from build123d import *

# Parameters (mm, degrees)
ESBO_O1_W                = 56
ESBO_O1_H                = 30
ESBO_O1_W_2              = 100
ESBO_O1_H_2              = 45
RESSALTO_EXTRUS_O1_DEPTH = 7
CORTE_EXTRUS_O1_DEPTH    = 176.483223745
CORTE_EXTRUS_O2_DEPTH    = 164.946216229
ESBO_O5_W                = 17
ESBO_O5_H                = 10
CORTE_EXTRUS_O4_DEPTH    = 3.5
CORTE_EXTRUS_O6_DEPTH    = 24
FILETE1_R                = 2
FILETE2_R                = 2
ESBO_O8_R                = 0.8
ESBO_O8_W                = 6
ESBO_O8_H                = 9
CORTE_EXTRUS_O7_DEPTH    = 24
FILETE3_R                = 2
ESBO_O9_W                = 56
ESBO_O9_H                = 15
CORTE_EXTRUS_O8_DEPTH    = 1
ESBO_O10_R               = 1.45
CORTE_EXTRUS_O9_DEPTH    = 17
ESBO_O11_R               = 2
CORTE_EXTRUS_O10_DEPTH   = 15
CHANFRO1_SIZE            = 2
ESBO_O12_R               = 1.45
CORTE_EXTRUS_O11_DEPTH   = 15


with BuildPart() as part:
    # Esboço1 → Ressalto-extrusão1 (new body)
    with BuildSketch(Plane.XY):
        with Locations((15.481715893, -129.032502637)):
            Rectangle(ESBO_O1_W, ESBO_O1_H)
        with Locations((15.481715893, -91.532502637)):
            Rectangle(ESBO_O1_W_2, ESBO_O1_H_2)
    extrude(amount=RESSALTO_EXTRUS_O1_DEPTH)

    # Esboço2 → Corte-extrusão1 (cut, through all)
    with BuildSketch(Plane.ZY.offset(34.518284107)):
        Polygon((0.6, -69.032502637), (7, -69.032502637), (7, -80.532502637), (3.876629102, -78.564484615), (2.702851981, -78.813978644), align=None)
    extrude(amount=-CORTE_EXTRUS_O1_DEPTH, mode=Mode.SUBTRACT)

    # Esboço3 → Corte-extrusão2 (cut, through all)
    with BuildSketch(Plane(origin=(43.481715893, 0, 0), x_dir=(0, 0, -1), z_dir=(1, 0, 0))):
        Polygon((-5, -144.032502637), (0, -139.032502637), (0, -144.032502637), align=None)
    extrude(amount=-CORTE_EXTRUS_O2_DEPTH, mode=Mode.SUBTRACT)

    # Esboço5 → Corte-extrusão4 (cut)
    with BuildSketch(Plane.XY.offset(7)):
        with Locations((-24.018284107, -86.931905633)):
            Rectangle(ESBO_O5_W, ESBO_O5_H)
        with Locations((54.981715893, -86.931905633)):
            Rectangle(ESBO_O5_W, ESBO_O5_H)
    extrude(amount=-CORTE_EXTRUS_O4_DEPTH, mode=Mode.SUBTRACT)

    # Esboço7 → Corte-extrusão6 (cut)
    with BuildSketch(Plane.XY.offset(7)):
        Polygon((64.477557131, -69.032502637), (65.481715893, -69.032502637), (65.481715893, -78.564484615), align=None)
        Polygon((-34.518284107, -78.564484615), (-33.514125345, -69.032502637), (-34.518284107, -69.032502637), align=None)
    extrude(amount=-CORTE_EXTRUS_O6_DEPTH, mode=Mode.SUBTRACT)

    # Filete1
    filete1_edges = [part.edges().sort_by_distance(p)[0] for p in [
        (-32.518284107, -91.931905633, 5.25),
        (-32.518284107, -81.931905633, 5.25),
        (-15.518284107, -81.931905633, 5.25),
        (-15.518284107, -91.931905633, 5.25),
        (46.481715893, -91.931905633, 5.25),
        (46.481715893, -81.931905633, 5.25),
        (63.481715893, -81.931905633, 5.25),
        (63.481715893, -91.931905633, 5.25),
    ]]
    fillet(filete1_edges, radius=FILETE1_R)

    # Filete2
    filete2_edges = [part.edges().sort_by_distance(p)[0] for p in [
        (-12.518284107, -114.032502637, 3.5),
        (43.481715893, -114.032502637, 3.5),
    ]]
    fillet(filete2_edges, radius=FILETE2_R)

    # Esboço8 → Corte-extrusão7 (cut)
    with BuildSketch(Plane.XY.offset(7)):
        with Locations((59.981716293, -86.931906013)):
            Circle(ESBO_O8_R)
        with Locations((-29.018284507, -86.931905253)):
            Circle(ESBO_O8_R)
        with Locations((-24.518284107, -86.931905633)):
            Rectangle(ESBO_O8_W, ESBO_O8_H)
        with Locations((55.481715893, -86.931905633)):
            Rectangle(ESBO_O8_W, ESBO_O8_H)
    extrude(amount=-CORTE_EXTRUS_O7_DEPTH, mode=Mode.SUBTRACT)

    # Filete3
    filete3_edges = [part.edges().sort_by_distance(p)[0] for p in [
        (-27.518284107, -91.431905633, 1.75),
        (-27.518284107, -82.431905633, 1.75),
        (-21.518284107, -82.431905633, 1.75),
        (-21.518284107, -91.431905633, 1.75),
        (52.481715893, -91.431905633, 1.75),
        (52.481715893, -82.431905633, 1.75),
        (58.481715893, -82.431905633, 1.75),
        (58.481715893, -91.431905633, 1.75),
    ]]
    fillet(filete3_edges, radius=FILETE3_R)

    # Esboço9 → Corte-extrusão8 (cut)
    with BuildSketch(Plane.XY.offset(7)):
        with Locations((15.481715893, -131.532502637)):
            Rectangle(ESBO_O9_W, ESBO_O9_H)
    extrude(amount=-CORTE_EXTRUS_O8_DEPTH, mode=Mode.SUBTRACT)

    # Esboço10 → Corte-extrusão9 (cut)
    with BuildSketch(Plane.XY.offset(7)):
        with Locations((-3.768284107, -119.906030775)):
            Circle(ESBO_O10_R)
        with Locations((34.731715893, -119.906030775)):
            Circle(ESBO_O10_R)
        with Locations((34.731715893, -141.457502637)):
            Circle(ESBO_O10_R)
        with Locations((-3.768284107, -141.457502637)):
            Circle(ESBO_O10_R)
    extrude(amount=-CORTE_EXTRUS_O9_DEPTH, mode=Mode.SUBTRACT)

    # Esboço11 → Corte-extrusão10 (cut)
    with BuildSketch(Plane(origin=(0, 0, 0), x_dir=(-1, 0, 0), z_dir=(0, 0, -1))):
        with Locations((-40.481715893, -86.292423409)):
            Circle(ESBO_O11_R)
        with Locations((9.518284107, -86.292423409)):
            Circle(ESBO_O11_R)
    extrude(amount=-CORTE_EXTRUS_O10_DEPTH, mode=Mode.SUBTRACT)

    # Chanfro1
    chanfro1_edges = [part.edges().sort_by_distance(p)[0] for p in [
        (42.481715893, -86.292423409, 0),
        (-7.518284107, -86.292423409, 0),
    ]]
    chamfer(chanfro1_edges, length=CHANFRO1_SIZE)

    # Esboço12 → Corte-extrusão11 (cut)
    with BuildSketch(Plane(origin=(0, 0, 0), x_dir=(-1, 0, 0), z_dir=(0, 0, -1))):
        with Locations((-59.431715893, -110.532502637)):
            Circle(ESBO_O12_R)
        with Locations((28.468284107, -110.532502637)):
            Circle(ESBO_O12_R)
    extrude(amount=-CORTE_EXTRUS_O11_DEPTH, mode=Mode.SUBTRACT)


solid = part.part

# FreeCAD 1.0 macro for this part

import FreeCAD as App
import Part
import Sketcher
Q = App.Units.Quantity


def edges_at(feature, points):
    """Names of the edges that pass closest to the given points."""
    edges = feature.Shape.Edges
    near = lambda p: min(range(len(edges)), key=lambda i: edges[i].distToShape(Part.Vertex(*p))[0])
    return sorted({f"Edge{near(p) + 1}" for p in points})

doc = App.newDocument("Part")
body = doc.addObject("PartDesign::Body", "Body")

# Sketch on XY plane
sketch1 = body.newObject("Sketcher::SketchObject", "Sketch")
sketch1.AttachmentSupport = (doc.getObject("XY_Plane"), [""])
sketch1.MapMode = "FlatFace"
sketch1.addGeometry(Part.LineSegment(App.Vector(-13, -114, 0), App.Vector(-13, -144, 0)), False)
sketch1.addGeometry(Part.LineSegment(App.Vector(-13, -144, 0), App.Vector(43, -144, 0)), False)
sketch1.addGeometry(Part.LineSegment(App.Vector(43, -144, 0), App.Vector(43, -114, 0)), False)
sketch1.addGeometry(Part.LineSegment(App.Vector(43, -114, 0), App.Vector(65, -114, 0)), False)
sketch1.addGeometry(Part.LineSegment(App.Vector(65, -114, 0), App.Vector(65, -69, 0)), False)
sketch1.addGeometry(Part.LineSegment(App.Vector(65, -69, 0), App.Vector(-35, -69, 0)), False)
sketch1.addGeometry(Part.LineSegment(App.Vector(-35, -69, 0), App.Vector(-35, -114, 0)), False)
sketch1.addGeometry(Part.LineSegment(App.Vector(-35, -114, 0), App.Vector(-13, -114, 0)), False)
sketch1.addConstraint(Sketcher.Constraint("Coincident", 0, 2, 1, 1))
sketch1.addConstraint(Sketcher.Constraint("Coincident", 1, 2, 2, 1))
sketch1.addConstraint(Sketcher.Constraint("Coincident", 2, 2, 3, 1))
sketch1.addConstraint(Sketcher.Constraint("Coincident", 3, 2, 4, 1))
sketch1.addConstraint(Sketcher.Constraint("Coincident", 4, 2, 5, 1))
sketch1.addConstraint(Sketcher.Constraint("Coincident", 5, 2, 6, 1))
sketch1.addConstraint(Sketcher.Constraint("Coincident", 6, 2, 7, 1))
sketch1.addConstraint(Sketcher.Constraint("Coincident", 7, 2, 0, 1))
sketch1.addConstraint(Sketcher.Constraint("Vertical", 0))
sketch1.addConstraint(Sketcher.Constraint("Horizontal", 1))
sketch1.addConstraint(Sketcher.Constraint("Vertical", 2))
sketch1.addConstraint(Sketcher.Constraint("Horizontal", 3))
sketch1.addConstraint(Sketcher.Constraint("Vertical", 4))
sketch1.addConstraint(Sketcher.Constraint("Horizontal", 5))
sketch1.addConstraint(Sketcher.Constraint("Vertical", 6))
sketch1.addConstraint(Sketcher.Constraint("Horizontal", 7))
sketch1.addConstraint(Sketcher.Constraint("Horizontal", 3, 2, 6, 2))
sketch1.addConstraint(Sketcher.Constraint("Equal", 3, 7))
sketch1.addConstraint(Sketcher.Constraint("DistanceX", 1, 1, 1, 2, 56.0))
sketch1.addConstraint(Sketcher.Constraint("DistanceX", 3, 1, 3, 2, 22.0))
sketch1.addConstraint(Sketcher.Constraint("DistanceY", 0, 2, 0, 1, 30.0))
sketch1.addConstraint(Sketcher.Constraint("DistanceY", 4, 1, 4, 2, 45.0))
sketch1.addConstraint(Sketcher.Constraint("DistanceX", 0, 2, -1, 1, 12.518284))
sketch1.addConstraint(Sketcher.Constraint("DistanceY", 0, 2, -1, 1, 144.032503))
pad1 = body.newObject("PartDesign::Pad", "Pad")
pad1.Profile = sketch1
pad1.Length = 7

# Sketch on YZ plane
sketch2 = body.newObject("Sketcher::SketchObject", "Sketch001")
sketch2.AttachmentSupport = (doc.getObject("YZ_Plane"), [""])
sketch2.MapMode = "FlatFace"
sketch2.AttachmentOffset = App.Placement(App.Vector(0, 0, -34.518284), App.Rotation())
sketch2.addGeometry(Part.LineSegment(App.Vector(-69, 7, 0), App.Vector(-69, 0.6, 0)), False)
sketch2.addGeometry(Part.LineSegment(App.Vector(-69, 0.6, 0), App.Vector(-78.8, 2.7, 0)), False)
sketch2.addGeometry(Part.LineSegment(App.Vector(-78.8, 2.7, 0), App.Vector(-78.6, 3.9, 0)), False)
sketch2.addGeometry(Part.LineSegment(App.Vector(-78.6, 3.9, 0), App.Vector(-80.5, 7, 0)), False)
sketch2.addGeometry(Part.LineSegment(App.Vector(-80.5, 7, 0), App.Vector(-69, 7, 0)), False)
sketch2.addConstraint(Sketcher.Constraint("Coincident", 0, 2, 1, 1))
sketch2.addConstraint(Sketcher.Constraint("Coincident", 1, 2, 2, 1))
sketch2.addConstraint(Sketcher.Constraint("Coincident", 2, 2, 3, 1))
sketch2.addConstraint(Sketcher.Constraint("Coincident", 3, 2, 4, 1))
sketch2.addConstraint(Sketcher.Constraint("Coincident", 4, 2, 0, 1))
sketch2.addConstraint(Sketcher.Constraint("Vertical", 0))
sketch2.addConstraint(Sketcher.Constraint("Horizontal", 4))
sketch2.addConstraint(Sketcher.Constraint("Angle", 2, Q("78 deg")))
sketch2.addConstraint(Sketcher.Constraint("DistanceX", 4, 1, 4, 2, 11.5))
sketch2.addConstraint(Sketcher.Constraint("DistanceY", 0, 2, 0, 1, 6.4))
sketch2.addConstraint(Sketcher.Constraint("DistanceY", -1, 1, 3, 2, 7.0))
sketch2.addConstraint(Sketcher.Constraint("Distance", 2, 1.2))
sketch2.addConstraint(Sketcher.Constraint("Distance", 1, 10.004962))
sketch2.addConstraint(Sketcher.Constraint("DistanceX", 1, 2, -1, 1, 78.813979))
sketch2.addConstraint(Sketcher.Constraint("DistanceY", -1, 1, 1, 2, 2.702852))
pocket1 = body.newObject("PartDesign::Pocket", "Pocket")
pocket1.Profile = sketch2
pocket1.Type = "ThroughAll"
pocket1.Reversed = True

# Sketch on YZ plane
sketch3 = body.newObject("Sketcher::SketchObject", "Sketch002")
sketch3.AttachmentSupport = (doc.getObject("YZ_Plane"), [""])
sketch3.MapMode = "FlatFace"
sketch3.AttachmentOffset = App.Placement(App.Vector(0, 0, 43.481716), App.Rotation())
sketch3.addGeometry(Part.LineSegment(App.Vector(-139, 0, 0), App.Vector(-144, 5, 0)), False)
sketch3.addGeometry(Part.LineSegment(App.Vector(-144, 5, 0), App.Vector(-144, 0, 0)), False)
sketch3.addGeometry(Part.LineSegment(App.Vector(-144, 0, 0), App.Vector(-139, 0, 0)), False)
sketch3.addConstraint(Sketcher.Constraint("Coincident", 0, 2, 1, 1))
sketch3.addConstraint(Sketcher.Constraint("Coincident", 1, 2, 2, 1))
sketch3.addConstraint(Sketcher.Constraint("Coincident", 2, 2, 0, 1))
sketch3.addConstraint(Sketcher.Constraint("Vertical", 1))
sketch3.addConstraint(Sketcher.Constraint("Horizontal", 2))
sketch3.addConstraint(Sketcher.Constraint("PointOnObject", 1, 2, -1))
sketch3.addConstraint(Sketcher.Constraint("Equal", 2, 1))
sketch3.addConstraint(Sketcher.Constraint("DistanceX", 2, 1, 2, 2, 5.0))
sketch3.addConstraint(Sketcher.Constraint("DistanceX", 0, 2, -1, 1, 144.032503))
pocket2 = body.newObject("PartDesign::Pocket", "Pocket001")
pocket2.Profile = sketch3
pocket2.Type = "ThroughAll"

# Sketch on XY plane
sketch4 = body.newObject("Sketcher::SketchObject", "Sketch003")
sketch4.AttachmentSupport = (doc.getObject("XY_Plane"), [""])
sketch4.MapMode = "FlatFace"
sketch4.AttachmentOffset = App.Placement(App.Vector(0, 0, 7), App.Rotation())
sketch4.addGeometry(Part.LineSegment(App.Vector(-33, -82, 0), App.Vector(-33, -92, 0)), False)
sketch4.addGeometry(Part.LineSegment(App.Vector(-33, -92, 0), App.Vector(-16, -92, 0)), False)
sketch4.addGeometry(Part.LineSegment(App.Vector(-16, -92, 0), App.Vector(-16, -82, 0)), False)
sketch4.addGeometry(Part.LineSegment(App.Vector(-16, -82, 0), App.Vector(-33, -82, 0)), False)
sketch4.addGeometry(Part.LineSegment(App.Vector(46, -82, 0), App.Vector(46, -92, 0)), False)
sketch4.addGeometry(Part.LineSegment(App.Vector(46, -92, 0), App.Vector(63, -92, 0)), False)
sketch4.addGeometry(Part.LineSegment(App.Vector(63, -92, 0), App.Vector(63, -82, 0)), False)
sketch4.addGeometry(Part.LineSegment(App.Vector(63, -82, 0), App.Vector(46, -82, 0)), False)
sketch4.addConstraint(Sketcher.Constraint("Coincident", 0, 2, 1, 1))
sketch4.addConstraint(Sketcher.Constraint("Coincident", 1, 2, 2, 1))
sketch4.addConstraint(Sketcher.Constraint("Coincident", 2, 2, 3, 1))
sketch4.addConstraint(Sketcher.Constraint("Coincident", 3, 2, 0, 1))
sketch4.addConstraint(Sketcher.Constraint("Coincident", 4, 2, 5, 1))
sketch4.addConstraint(Sketcher.Constraint("Coincident", 5, 2, 6, 1))
sketch4.addConstraint(Sketcher.Constraint("Coincident", 6, 2, 7, 1))
sketch4.addConstraint(Sketcher.Constraint("Coincident", 7, 2, 4, 1))
sketch4.addConstraint(Sketcher.Constraint("Vertical", 0))
sketch4.addConstraint(Sketcher.Constraint("Horizontal", 1))
sketch4.addConstraint(Sketcher.Constraint("Vertical", 2))
sketch4.addConstraint(Sketcher.Constraint("Horizontal", 3))
sketch4.addConstraint(Sketcher.Constraint("Vertical", 4))
sketch4.addConstraint(Sketcher.Constraint("Horizontal", 5))
sketch4.addConstraint(Sketcher.Constraint("Vertical", 6))
sketch4.addConstraint(Sketcher.Constraint("Horizontal", 7))
sketch4.addConstraint(Sketcher.Constraint("Horizontal", 1, 2, 4, 2))
sketch4.addConstraint(Sketcher.Constraint("Horizontal", 3, 2, 6, 2))
sketch4.addConstraint(Sketcher.Constraint("Equal", 3, 5))
sketch4.addConstraint(Sketcher.Constraint("DistanceX", 1, 1, 1, 2, 17.0))
sketch4.addConstraint(Sketcher.Constraint("DistanceY", 0, 2, 0, 1, 10.0))
sketch4.addConstraint(Sketcher.Constraint("DistanceX", 1, 2, 4, 2, 62.0))
sketch4.addConstraint(Sketcher.Constraint("DistanceX", 0, 2, -1, 1, 32.518284))
sketch4.addConstraint(Sketcher.Constraint("DistanceY", 0, 2, -1, 1, 91.931906))
pocket3 = body.newObject("PartDesign::Pocket", "Pocket002")
pocket3.Profile = sketch4
pocket3.Length = 3.5

# Sketch on XY plane
sketch5 = body.newObject("Sketcher::SketchObject", "Sketch004")
sketch5.AttachmentSupport = (doc.getObject("XY_Plane"), [""])
sketch5.MapMode = "FlatFace"
sketch5.AttachmentOffset = App.Placement(App.Vector(0, 0, 7), App.Rotation())
sketch5.addGeometry(Part.LineSegment(App.Vector(65.5, -69, 0), App.Vector(64.5, -69, 0)), False)
sketch5.addGeometry(Part.LineSegment(App.Vector(64.5, -69, 0), App.Vector(65.5, -78.6, 0)), False)
sketch5.addGeometry(Part.LineSegment(App.Vector(65.5, -78.6, 0), App.Vector(65.5, -69, 0)), False)
sketch5.addGeometry(Part.LineSegment(App.Vector(-34.5, -78.6, 0), App.Vector(-33.5, -69, 0)), False)
sketch5.addGeometry(Part.LineSegment(App.Vector(-33.5, -69, 0), App.Vector(-34.5, -69, 0)), False)
sketch5.addGeometry(Part.LineSegment(App.Vector(-34.5, -69, 0), App.Vector(-34.5, -78.6, 0)), False)
sketch5.addConstraint(Sketcher.Constraint("Coincident", 0, 2, 1, 1))
sketch5.addConstraint(Sketcher.Constraint("Coincident", 1, 2, 2, 1))
sketch5.addConstraint(Sketcher.Constraint("Coincident", 2, 2, 0, 1))
sketch5.addConstraint(Sketcher.Constraint("Coincident", 3, 2, 4, 1))
sketch5.addConstraint(Sketcher.Constraint("Coincident", 4, 2, 5, 1))
sketch5.addConstraint(Sketcher.Constraint("Coincident", 5, 2, 3, 1))
sketch5.addConstraint(Sketcher.Constraint("Horizontal", 0))
sketch5.addConstraint(Sketcher.Constraint("Vertical", 2))
sketch5.addConstraint(Sketcher.Constraint("Horizontal", 4))
sketch5.addConstraint(Sketcher.Constraint("Vertical", 5))
sketch5.addConstraint(Sketcher.Constraint("Horizontal", 2, 2, 3, 2))
sketch5.addConstraint(Sketcher.Constraint("Horizontal", 1, 2, 5, 2))
sketch5.addConstraint(Sketcher.Constraint("Equal", 0, 4))
sketch5.addConstraint(Sketcher.Constraint("DistanceX", 4, 2, 2, 2, 100.0))
sketch5.addConstraint(Sketcher.Constraint("DistanceX", 0, 2, 0, 1, 1.004159))
sketch5.addConstraint(Sketcher.Constraint("DistanceY", 2, 1, 2, 2, 9.531982))
sketch5.addConstraint(Sketcher.Constraint("DistanceX", -1, 1, 0, 2, 64.477557))
sketch5.addConstraint(Sketcher.Constraint("DistanceY", 0, 2, -1, 1, 69.032503))
pocket4 = body.newObject("PartDesign::Pocket", "Pocket003")
pocket4.Profile = sketch5
pocket4.Length = 24
doc.recompute()

fillet = body.newObject("PartDesign::Fillet", "Fillet")
fillet.Base = (pocket4, edges_at(pocket4, [
    (-32.518, -91.932, 5.25),
    (-32.518, -81.932, 5.25),
    (-15.518, -81.932, 5.25),
    (-15.518, -91.932, 5.25),
    (46.482, -91.932, 5.25),
    (46.482, -81.932, 5.25),
    (63.482, -81.932, 5.25),
    (63.482, -91.932, 5.25),
]))
fillet.Radius = 2
doc.recompute()

fillet2 = body.newObject("PartDesign::Fillet", "Fillet001")
fillet2.Base = (fillet, edges_at(fillet, [(-12.518, -114.033, 3.5), (43.482, -114.033, 3.5)]))
fillet2.Radius = 2

# Sketch on XY plane
sketch6 = body.newObject("Sketcher::SketchObject", "Sketch005")
sketch6.AttachmentSupport = (doc.getObject("XY_Plane"), [""])
sketch6.MapMode = "FlatFace"
sketch6.AttachmentOffset = App.Placement(App.Vector(0, 0, 7), App.Rotation())
sketch6.addGeometry(Part.Circle(App.Vector(60, -86.9, 0), App.Vector(0, 0, 1), 0.8), False)
sketch6.addGeometry(Part.Circle(App.Vector(-29, -86.9, 0), App.Vector(0, 0, 1), 0.8), False)
sketch6.addGeometry(Part.LineSegment(App.Vector(-27.5, -82.4, 0), App.Vector(-27.5, -91.4, 0)), False)
sketch6.addGeometry(Part.LineSegment(App.Vector(-27.5, -91.4, 0), App.Vector(-21.5, -91.4, 0)), False)
sketch6.addGeometry(Part.LineSegment(App.Vector(-21.5, -91.4, 0), App.Vector(-21.5, -82.4, 0)), False)
sketch6.addGeometry(Part.LineSegment(App.Vector(-21.5, -82.4, 0), App.Vector(-27.5, -82.4, 0)), False)
sketch6.addGeometry(Part.LineSegment(App.Vector(52.5, -82.4, 0), App.Vector(52.5, -91.4, 0)), False)
sketch6.addGeometry(Part.LineSegment(App.Vector(52.5, -91.4, 0), App.Vector(58.5, -91.4, 0)), False)
sketch6.addGeometry(Part.LineSegment(App.Vector(58.5, -91.4, 0), App.Vector(58.5, -82.4, 0)), False)
sketch6.addGeometry(Part.LineSegment(App.Vector(58.5, -82.4, 0), App.Vector(52.5, -82.4, 0)), False)
sketch6.addConstraint(Sketcher.Constraint("Coincident", 2, 2, 3, 1))
sketch6.addConstraint(Sketcher.Constraint("Coincident", 3, 2, 4, 1))
sketch6.addConstraint(Sketcher.Constraint("Coincident", 4, 2, 5, 1))
sketch6.addConstraint(Sketcher.Constraint("Coincident", 5, 2, 2, 1))
sketch6.addConstraint(Sketcher.Constraint("Coincident", 6, 2, 7, 1))
sketch6.addConstraint(Sketcher.Constraint("Coincident", 7, 2, 8, 1))
sketch6.addConstraint(Sketcher.Constraint("Coincident", 8, 2, 9, 1))
sketch6.addConstraint(Sketcher.Constraint("Coincident", 9, 2, 6, 1))
sketch6.addConstraint(Sketcher.Constraint("Vertical", 2))
sketch6.addConstraint(Sketcher.Constraint("Horizontal", 3))
sketch6.addConstraint(Sketcher.Constraint("Vertical", 4))
sketch6.addConstraint(Sketcher.Constraint("Horizontal", 5))
sketch6.addConstraint(Sketcher.Constraint("Vertical", 6))
sketch6.addConstraint(Sketcher.Constraint("Horizontal", 7))
sketch6.addConstraint(Sketcher.Constraint("Vertical", 8))
sketch6.addConstraint(Sketcher.Constraint("Horizontal", 9))
sketch6.addConstraint(Sketcher.Constraint("Equal", 0, 1))
sketch6.addConstraint(Sketcher.Constraint("Horizontal", 0, 3, 1, 3))
sketch6.addConstraint(Sketcher.Constraint("Horizontal", 3, 2, 6, 2))
sketch6.addConstraint(Sketcher.Constraint("Horizontal", 5, 2, 8, 2))
sketch6.addConstraint(Sketcher.Constraint("Equal", 5, 7))
sketch6.addConstraint(Sketcher.Constraint("Diameter", 0, 1.6))
sketch6.addConstraint(Sketcher.Constraint("DistanceX", 3, 1, 3, 2, 6.0))
sketch6.addConstraint(Sketcher.Constraint("DistanceY", 2, 2, 2, 1, 9.0))
sketch6.addConstraint(Sketcher.Constraint("DistanceX", 1, 3, 0, 3, 89.000001))
sketch6.addConstraint(Sketcher.Constraint("DistanceX", 3, 2, 6, 2, 74.0))
sketch6.addConstraint(Sketcher.Constraint("DistanceX", 1, 3, 2, 2, 1.5))
sketch6.addConstraint(Sketcher.Constraint("DistanceY", 2, 2, 1, 3, 4.5))
sketch6.addConstraint(Sketcher.Constraint("DistanceX", -1, 1, 0, 3, 59.981716))
sketch6.addConstraint(Sketcher.Constraint("DistanceY", 0, 3, -1, 1, 86.931906))
pocket5 = body.newObject("PartDesign::Pocket", "Pocket004")
pocket5.Profile = sketch6
pocket5.Length = 24
doc.recompute()

fillet3 = body.newObject("PartDesign::Fillet", "Fillet002")
fillet3.Base = (pocket5, edges_at(pocket5, [
    (-27.518, -91.432, 1.75),
    (-27.518, -82.432, 1.75),
    (-21.518, -82.432, 1.75),
    (-21.518, -91.432, 1.75),
    (52.482, -91.432, 1.75),
    (52.482, -82.432, 1.75),
    (58.482, -82.432, 1.75),
    (58.482, -91.432, 1.75),
]))
fillet3.Radius = 2

# Sketch on XY plane
sketch7 = body.newObject("Sketcher::SketchObject", "Sketch006")
sketch7.AttachmentSupport = (doc.getObject("XY_Plane"), [""])
sketch7.MapMode = "FlatFace"
sketch7.AttachmentOffset = App.Placement(App.Vector(0, 0, 7), App.Rotation())
sketch7.addGeometry(Part.LineSegment(App.Vector(-13, -124, 0), App.Vector(-13, -139, 0)), False)
sketch7.addGeometry(Part.LineSegment(App.Vector(-13, -139, 0), App.Vector(43, -139, 0)), False)
sketch7.addGeometry(Part.LineSegment(App.Vector(43, -139, 0), App.Vector(43, -124, 0)), False)
sketch7.addGeometry(Part.LineSegment(App.Vector(43, -124, 0), App.Vector(-13, -124, 0)), False)
sketch7.addConstraint(Sketcher.Constraint("Coincident", 0, 2, 1, 1))
sketch7.addConstraint(Sketcher.Constraint("Coincident", 1, 2, 2, 1))
sketch7.addConstraint(Sketcher.Constraint("Coincident", 2, 2, 3, 1))
sketch7.addConstraint(Sketcher.Constraint("Coincident", 3, 2, 0, 1))
sketch7.addConstraint(Sketcher.Constraint("Vertical", 0))
sketch7.addConstraint(Sketcher.Constraint("Horizontal", 1))
sketch7.addConstraint(Sketcher.Constraint("Vertical", 2))
sketch7.addConstraint(Sketcher.Constraint("Horizontal", 3))
sketch7.addConstraint(Sketcher.Constraint("DistanceX", 1, 1, 1, 2, 56.0))
sketch7.addConstraint(Sketcher.Constraint("DistanceY", 0, 2, 0, 1, 15.0))
sketch7.addConstraint(Sketcher.Constraint("DistanceX", 0, 2, -1, 1, 12.518284))
sketch7.addConstraint(Sketcher.Constraint("DistanceY", 0, 2, -1, 1, 139.032503))
pocket6 = body.newObject("PartDesign::Pocket", "Pocket005")
pocket6.Profile = sketch7
pocket6.Length = 1

# Sketch on XY plane
sketch8 = body.newObject("Sketcher::SketchObject", "Sketch007")
sketch8.AttachmentSupport = (doc.getObject("XY_Plane"), [""])
sketch8.MapMode = "FlatFace"
sketch8.AttachmentOffset = App.Placement(App.Vector(0, 0, 7), App.Rotation())
sketch8.addGeometry(Part.Circle(App.Vector(-3.8, -119.9, 0), App.Vector(0, 0, 1), 1.4), False)
sketch8.addGeometry(Part.Circle(App.Vector(34.7, -119.9, 0), App.Vector(0, 0, 1), 1.4), False)
sketch8.addGeometry(Part.Circle(App.Vector(34.7, -141.5, 0), App.Vector(0, 0, 1), 1.4), False)
sketch8.addGeometry(Part.Circle(App.Vector(-3.8, -141.5, 0), App.Vector(0, 0, 1), 1.4), False)
sketch8.addConstraint(Sketcher.Constraint("Equal", 0, 1))
sketch8.addConstraint(Sketcher.Constraint("Equal", 1, 2))
sketch8.addConstraint(Sketcher.Constraint("Equal", 2, 3))
sketch8.addConstraint(Sketcher.Constraint("Horizontal", 0, 3, 1, 3))
sketch8.addConstraint(Sketcher.Constraint("Horizontal", 2, 3, 3, 3))
sketch8.addConstraint(Sketcher.Constraint("Vertical", 1, 3, 2, 3))
sketch8.addConstraint(Sketcher.Constraint("Vertical", 0, 3, 3, 3))
sketch8.addConstraint(Sketcher.Constraint("Diameter", 0, 2.9))
sketch8.addConstraint(Sketcher.Constraint("DistanceX", 0, 3, 1, 3, 38.5))
sketch8.addConstraint(Sketcher.Constraint("DistanceY", 0, 3, -1, 1, 119.906031))
sketch8.addConstraint(Sketcher.Constraint("DistanceY", 2, 3, 1, 3, 21.551472))
sketch8.addConstraint(Sketcher.Constraint("DistanceX", 0, 3, -1, 1, 3.768284))
pocket7 = body.newObject("PartDesign::Pocket", "Pocket006")
pocket7.Profile = sketch8
pocket7.Length = 17

# Sketch on XY plane
sketch9 = body.newObject("Sketcher::SketchObject", "Sketch008")
sketch9.AttachmentSupport = (doc.getObject("XY_Plane"), [""])
sketch9.MapMode = "FlatFace"
sketch9.addGeometry(Part.Circle(App.Vector(40.5, -86.3, 0), App.Vector(0, 0, 1), 2), False)
sketch9.addGeometry(Part.Circle(App.Vector(-9.5, -86.3, 0), App.Vector(0, 0, 1), 2), False)
sketch9.addConstraint(Sketcher.Constraint("Equal", 0, 1))
sketch9.addConstraint(Sketcher.Constraint("Horizontal", 0, 3, 1, 3))
sketch9.addConstraint(Sketcher.Constraint("Diameter", 0, 4.0))
sketch9.addConstraint(Sketcher.Constraint("DistanceX", 1, 3, 0, 3, 50.0))
sketch9.addConstraint(Sketcher.Constraint("DistanceX", -1, 1, 0, 3, 40.481716))
sketch9.addConstraint(Sketcher.Constraint("DistanceY", 0, 3, -1, 1, 86.292423))
pocket8 = body.newObject("PartDesign::Pocket", "Pocket007")
pocket8.Profile = sketch9
pocket8.Length = 15
pocket8.Reversed = True
doc.recompute()

chamfer = body.newObject("PartDesign::Chamfer", "Chamfer")
chamfer.Base = (pocket8, edges_at(pocket8, [(42.482, -86.292, 0), (-7.518, -86.292, 0)]))
chamfer.Size = 2

# Sketch on XY plane
sketch10 = body.newObject("Sketcher::SketchObject", "Sketch009")
sketch10.AttachmentSupport = (doc.getObject("XY_Plane"), [""])
sketch10.MapMode = "FlatFace"
sketch10.addGeometry(Part.Circle(App.Vector(59.4, -110.5, 0), App.Vector(0, 0, 1), 1.4), False)
sketch10.addGeometry(Part.Circle(App.Vector(-28.5, -110.5, 0), App.Vector(0, 0, 1), 1.4), False)
sketch10.addConstraint(Sketcher.Constraint("Equal", 0, 1))
sketch10.addConstraint(Sketcher.Constraint("Horizontal", 0, 3, 1, 3))
sketch10.addConstraint(Sketcher.Constraint("Diameter", 0, 2.9))
sketch10.addConstraint(Sketcher.Constraint("DistanceX", 1, 3, 0, 3, 87.9))
sketch10.addConstraint(Sketcher.Constraint("DistanceX", -1, 1, 0, 3, 59.431716))
sketch10.addConstraint(Sketcher.Constraint("DistanceY", 0, 3, -1, 1, 110.532503))
pocket9 = body.newObject("PartDesign::Pocket", "Pocket008")
pocket9.Profile = sketch10
pocket9.Length = 15
pocket9.Reversed = True

doc.recompute()
